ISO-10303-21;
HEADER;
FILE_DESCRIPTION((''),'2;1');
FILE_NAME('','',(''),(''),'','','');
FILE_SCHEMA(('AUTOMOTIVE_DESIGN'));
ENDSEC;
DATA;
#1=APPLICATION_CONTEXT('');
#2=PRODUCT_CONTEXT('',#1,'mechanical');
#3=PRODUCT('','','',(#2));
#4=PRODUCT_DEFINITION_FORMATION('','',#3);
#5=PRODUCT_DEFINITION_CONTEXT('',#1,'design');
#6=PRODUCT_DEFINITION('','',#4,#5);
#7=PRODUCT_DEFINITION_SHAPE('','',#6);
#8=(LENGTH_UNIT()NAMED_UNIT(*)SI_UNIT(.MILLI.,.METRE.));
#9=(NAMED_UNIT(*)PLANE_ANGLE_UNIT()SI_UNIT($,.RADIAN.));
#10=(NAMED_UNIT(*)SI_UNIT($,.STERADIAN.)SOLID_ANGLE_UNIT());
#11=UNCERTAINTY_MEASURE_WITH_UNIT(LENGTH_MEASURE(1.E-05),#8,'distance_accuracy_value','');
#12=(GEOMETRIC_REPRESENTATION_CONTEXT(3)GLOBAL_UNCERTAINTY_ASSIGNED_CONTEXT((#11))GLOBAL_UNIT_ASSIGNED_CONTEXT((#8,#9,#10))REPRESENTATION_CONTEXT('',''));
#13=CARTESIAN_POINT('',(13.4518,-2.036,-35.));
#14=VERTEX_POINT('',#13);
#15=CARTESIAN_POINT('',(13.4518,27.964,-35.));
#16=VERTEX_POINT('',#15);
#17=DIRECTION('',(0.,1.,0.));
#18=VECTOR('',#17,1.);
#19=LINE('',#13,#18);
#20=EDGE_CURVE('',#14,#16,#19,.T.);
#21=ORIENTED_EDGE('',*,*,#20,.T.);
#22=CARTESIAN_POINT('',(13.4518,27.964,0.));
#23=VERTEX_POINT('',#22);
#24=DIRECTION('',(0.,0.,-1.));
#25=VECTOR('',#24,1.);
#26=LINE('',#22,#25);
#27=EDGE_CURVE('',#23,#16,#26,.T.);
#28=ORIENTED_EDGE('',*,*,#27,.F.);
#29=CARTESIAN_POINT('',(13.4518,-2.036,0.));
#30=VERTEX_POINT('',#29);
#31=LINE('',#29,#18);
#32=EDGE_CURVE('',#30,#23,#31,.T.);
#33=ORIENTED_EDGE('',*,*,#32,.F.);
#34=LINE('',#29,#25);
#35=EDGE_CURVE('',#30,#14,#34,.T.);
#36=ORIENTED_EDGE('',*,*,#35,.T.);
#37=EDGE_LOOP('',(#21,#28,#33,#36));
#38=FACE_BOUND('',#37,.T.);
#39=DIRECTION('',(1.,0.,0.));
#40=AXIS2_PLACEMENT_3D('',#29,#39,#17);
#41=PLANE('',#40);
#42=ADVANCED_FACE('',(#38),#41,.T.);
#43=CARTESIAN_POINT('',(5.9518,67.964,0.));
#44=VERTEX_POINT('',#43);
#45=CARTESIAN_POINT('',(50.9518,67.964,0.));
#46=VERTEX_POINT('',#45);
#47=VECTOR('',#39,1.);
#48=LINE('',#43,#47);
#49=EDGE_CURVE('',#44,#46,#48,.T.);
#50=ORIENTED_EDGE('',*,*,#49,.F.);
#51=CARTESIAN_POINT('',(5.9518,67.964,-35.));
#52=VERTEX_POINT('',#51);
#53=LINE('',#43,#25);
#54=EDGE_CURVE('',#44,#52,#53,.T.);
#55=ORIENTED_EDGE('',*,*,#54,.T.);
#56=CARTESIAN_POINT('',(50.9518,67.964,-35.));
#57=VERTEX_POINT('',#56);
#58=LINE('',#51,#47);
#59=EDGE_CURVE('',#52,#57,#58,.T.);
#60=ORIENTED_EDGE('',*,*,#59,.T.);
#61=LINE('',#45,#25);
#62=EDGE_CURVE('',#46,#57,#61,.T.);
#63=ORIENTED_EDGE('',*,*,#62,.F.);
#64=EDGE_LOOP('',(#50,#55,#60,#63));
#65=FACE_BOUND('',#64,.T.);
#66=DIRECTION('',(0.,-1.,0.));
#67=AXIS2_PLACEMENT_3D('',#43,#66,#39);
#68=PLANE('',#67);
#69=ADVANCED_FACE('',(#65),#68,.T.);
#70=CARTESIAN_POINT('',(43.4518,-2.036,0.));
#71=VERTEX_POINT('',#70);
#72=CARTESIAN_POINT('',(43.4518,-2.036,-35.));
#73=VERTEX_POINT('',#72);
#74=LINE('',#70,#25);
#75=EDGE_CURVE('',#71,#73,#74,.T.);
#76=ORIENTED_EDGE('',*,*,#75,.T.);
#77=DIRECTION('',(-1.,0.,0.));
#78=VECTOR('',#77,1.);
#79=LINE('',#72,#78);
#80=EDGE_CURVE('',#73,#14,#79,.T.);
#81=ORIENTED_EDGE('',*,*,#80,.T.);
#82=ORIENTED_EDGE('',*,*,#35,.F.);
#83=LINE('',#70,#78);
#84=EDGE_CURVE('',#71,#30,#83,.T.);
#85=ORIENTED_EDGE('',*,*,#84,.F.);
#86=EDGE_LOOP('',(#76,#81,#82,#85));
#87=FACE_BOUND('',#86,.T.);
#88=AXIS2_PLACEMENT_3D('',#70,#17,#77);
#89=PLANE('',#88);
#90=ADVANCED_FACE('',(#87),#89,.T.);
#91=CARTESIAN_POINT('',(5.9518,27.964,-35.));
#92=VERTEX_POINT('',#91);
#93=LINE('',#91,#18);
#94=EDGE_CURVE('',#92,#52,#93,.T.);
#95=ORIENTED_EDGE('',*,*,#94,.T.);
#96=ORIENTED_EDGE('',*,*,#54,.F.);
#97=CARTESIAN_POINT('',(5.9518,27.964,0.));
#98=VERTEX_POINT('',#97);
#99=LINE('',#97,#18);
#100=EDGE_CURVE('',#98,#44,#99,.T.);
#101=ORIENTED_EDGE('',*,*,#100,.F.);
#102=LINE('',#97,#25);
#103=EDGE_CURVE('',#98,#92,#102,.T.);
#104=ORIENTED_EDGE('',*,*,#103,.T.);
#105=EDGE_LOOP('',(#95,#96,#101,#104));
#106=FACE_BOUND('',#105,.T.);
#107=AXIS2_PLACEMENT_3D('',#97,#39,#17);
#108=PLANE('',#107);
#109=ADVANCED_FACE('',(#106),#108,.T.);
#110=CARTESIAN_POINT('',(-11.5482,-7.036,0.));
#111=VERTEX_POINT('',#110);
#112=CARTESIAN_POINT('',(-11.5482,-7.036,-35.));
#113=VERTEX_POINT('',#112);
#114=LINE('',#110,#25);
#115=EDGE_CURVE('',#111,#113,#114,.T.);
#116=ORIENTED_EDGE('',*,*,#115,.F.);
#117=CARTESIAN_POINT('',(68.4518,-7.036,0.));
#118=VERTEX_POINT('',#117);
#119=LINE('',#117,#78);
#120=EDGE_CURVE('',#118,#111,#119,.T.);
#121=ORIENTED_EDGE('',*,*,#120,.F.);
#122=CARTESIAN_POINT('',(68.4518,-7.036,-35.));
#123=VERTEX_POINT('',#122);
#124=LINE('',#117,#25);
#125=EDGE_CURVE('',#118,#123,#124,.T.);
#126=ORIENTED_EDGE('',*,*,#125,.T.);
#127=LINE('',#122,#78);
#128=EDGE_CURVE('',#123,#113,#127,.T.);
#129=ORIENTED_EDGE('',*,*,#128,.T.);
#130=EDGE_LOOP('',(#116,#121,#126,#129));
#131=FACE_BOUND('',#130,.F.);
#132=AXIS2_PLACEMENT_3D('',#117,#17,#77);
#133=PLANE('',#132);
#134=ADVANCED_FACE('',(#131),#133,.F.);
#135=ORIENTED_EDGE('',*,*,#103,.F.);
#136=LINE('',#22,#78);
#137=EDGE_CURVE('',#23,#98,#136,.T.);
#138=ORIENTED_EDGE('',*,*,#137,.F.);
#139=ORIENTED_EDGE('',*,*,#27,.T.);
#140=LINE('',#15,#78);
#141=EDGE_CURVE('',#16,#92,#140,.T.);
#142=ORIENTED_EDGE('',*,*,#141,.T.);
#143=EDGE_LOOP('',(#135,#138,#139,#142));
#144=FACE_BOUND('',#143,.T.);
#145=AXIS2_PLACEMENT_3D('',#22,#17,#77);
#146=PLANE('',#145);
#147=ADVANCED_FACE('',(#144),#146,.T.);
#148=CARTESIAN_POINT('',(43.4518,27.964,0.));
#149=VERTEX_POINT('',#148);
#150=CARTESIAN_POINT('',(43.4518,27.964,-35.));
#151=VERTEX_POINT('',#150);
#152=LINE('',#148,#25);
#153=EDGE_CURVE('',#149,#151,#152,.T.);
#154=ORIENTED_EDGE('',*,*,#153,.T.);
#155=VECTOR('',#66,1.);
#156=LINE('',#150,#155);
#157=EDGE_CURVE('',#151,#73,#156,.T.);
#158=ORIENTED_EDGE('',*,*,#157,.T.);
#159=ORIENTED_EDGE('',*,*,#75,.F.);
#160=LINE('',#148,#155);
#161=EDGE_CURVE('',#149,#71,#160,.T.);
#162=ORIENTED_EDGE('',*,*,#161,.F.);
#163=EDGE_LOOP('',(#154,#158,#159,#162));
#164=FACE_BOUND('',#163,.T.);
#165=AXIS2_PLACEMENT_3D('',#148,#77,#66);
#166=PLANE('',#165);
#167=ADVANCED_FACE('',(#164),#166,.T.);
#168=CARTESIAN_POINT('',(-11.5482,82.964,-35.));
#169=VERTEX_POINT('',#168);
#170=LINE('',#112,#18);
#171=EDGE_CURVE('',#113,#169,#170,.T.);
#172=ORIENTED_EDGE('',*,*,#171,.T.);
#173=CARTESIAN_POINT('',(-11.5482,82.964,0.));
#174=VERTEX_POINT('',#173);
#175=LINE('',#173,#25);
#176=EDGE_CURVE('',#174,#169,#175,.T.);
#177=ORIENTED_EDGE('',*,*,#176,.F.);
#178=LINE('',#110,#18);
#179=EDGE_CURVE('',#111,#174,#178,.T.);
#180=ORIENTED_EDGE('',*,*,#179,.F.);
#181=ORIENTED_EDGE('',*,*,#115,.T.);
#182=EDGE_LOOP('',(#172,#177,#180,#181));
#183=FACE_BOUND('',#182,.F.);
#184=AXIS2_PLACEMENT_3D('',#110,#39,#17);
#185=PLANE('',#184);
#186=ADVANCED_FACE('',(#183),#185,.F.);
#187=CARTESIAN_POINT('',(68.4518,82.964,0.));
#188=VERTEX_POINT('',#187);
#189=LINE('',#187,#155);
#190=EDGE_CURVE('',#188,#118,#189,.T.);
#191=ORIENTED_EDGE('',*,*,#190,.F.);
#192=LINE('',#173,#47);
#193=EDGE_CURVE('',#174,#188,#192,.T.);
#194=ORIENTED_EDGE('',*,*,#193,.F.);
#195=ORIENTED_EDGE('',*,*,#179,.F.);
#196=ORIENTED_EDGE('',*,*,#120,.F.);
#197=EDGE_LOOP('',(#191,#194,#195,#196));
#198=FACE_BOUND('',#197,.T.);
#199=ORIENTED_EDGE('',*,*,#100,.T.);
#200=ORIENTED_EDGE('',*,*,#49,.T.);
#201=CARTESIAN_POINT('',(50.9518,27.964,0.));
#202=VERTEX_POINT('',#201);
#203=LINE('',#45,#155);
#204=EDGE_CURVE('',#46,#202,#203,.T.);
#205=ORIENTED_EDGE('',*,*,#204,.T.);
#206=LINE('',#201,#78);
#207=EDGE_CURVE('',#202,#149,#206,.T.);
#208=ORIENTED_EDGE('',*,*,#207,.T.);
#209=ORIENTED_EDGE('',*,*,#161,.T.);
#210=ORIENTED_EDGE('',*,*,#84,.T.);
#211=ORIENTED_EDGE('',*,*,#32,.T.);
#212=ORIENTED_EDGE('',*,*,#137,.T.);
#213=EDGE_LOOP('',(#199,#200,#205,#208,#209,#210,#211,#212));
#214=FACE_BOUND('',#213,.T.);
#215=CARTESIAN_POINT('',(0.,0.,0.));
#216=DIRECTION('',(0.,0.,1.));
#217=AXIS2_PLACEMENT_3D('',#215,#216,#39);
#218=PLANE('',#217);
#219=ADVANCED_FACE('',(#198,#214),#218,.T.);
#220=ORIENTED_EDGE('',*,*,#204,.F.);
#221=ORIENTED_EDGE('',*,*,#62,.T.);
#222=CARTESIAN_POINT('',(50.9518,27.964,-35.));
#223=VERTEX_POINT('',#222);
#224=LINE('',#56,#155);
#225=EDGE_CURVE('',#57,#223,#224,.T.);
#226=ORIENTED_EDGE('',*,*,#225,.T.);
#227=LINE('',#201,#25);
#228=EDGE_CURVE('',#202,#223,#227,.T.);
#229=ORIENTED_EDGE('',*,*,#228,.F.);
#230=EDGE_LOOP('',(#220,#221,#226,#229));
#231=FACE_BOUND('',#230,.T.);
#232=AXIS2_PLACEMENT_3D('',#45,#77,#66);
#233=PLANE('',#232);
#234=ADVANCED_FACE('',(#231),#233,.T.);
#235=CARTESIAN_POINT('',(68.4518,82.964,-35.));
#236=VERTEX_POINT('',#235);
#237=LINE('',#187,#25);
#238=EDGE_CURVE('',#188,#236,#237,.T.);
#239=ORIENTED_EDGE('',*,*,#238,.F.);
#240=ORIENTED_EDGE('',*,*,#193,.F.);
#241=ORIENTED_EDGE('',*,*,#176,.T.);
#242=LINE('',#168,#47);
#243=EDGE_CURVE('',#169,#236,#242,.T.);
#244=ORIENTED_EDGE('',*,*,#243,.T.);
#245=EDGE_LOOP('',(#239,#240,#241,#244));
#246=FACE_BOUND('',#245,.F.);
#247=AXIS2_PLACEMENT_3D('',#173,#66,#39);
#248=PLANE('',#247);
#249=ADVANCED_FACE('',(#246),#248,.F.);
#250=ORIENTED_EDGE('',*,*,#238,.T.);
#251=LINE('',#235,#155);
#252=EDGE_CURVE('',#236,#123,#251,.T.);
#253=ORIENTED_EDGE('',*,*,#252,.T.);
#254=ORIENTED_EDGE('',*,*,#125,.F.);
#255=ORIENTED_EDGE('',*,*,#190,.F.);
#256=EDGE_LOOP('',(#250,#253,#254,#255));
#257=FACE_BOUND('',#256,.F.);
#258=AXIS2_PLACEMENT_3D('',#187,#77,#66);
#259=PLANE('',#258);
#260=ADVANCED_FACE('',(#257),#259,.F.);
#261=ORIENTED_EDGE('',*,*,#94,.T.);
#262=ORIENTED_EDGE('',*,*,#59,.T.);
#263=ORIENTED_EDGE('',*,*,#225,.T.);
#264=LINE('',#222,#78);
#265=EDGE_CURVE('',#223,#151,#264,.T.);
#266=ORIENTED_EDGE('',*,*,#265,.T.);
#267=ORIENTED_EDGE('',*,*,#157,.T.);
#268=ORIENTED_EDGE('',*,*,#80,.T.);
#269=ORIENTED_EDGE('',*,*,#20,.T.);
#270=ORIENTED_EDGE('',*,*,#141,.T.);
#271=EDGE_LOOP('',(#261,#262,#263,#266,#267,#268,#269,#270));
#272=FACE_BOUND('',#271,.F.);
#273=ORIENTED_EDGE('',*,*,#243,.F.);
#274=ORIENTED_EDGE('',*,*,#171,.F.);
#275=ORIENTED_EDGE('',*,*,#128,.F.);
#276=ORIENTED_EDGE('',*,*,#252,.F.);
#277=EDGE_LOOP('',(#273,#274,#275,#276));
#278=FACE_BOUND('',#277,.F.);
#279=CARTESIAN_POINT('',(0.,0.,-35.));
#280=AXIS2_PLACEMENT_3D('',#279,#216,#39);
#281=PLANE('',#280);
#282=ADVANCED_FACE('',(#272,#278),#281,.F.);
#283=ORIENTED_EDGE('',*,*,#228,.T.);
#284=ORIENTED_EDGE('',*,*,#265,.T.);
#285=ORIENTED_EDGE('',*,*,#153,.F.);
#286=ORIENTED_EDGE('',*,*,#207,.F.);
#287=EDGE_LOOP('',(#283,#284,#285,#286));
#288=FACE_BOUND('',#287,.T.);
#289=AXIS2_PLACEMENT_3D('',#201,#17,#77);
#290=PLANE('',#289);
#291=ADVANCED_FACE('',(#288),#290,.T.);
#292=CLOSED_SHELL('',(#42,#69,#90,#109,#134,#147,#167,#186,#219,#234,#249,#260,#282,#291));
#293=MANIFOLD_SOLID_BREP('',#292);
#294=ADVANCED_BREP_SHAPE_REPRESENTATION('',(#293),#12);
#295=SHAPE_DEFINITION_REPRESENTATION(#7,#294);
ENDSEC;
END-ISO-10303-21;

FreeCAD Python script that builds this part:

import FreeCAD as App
import Part
import Sketcher

doc = App.newDocument("Part")
body = doc.addObject("PartDesign::Body", "Body")

# Sketch on XY plane
sketch1 = doc.addObject("Sketcher::SketchObject", "Sketch")
body.addObject(sketch1)
sketch1.AttachmentSupport = (doc.XY_Plane, [""])
sketch1.MapMode = "FlatFace"
sketch1.addGeometry([
    Part.LineSegment(App.Vector(-12, 83, 0), App.Vector(-12, -7, 0)),  # 0
    Part.LineSegment(App.Vector(-12, -7, 0), App.Vector(68, -7, 0)),  # 1
    Part.LineSegment(App.Vector(68, -7, 0), App.Vector(68, 83, 0)),  # 2
    Part.LineSegment(App.Vector(68, 83, 0), App.Vector(-12, 83, 0)),  # 3
    Part.LineSegment(App.Vector(13, 28, 0), App.Vector(6, 28, 0)),  # 4
    Part.LineSegment(App.Vector(6, 28, 0), App.Vector(6, 68, 0)),  # 5
    Part.LineSegment(App.Vector(6, 68, 0), App.Vector(51, 68, 0)),  # 6
    Part.LineSegment(App.Vector(51, 68, 0), App.Vector(51, 28, 0)),  # 7
    Part.LineSegment(App.Vector(51, 28, 0), App.Vector(43, 28, 0)),  # 8
    Part.LineSegment(App.Vector(43, 28, 0), App.Vector(43, -2, 0)),  # 9
    Part.LineSegment(App.Vector(43, -2, 0), App.Vector(13, -2, 0)),  # 10
    Part.LineSegment(App.Vector(13, -2, 0), App.Vector(13, 28, 0)),  # 11
], False)
sketch1.addConstraint([
    Sketcher.Constraint("Coincident", 0, 2, 1, 1),
    Sketcher.Constraint("Coincident", 1, 2, 2, 1),
    Sketcher.Constraint("Coincident", 2, 2, 3, 1),
    Sketcher.Constraint("Coincident", 3, 2, 0, 1),
    Sketcher.Constraint("Coincident", 4, 2, 5, 1),
    Sketcher.Constraint("Coincident", 5, 2, 6, 1),
    Sketcher.Constraint("Coincident", 6, 2, 7, 1),
    Sketcher.Constraint("Coincident", 7, 2, 8, 1),
    Sketcher.Constraint("Coincident", 8, 2, 9, 1),
    Sketcher.Constraint("Coincident", 9, 2, 10, 1),
    Sketcher.Constraint("Coincident", 10, 2, 11, 1),
    Sketcher.Constraint("Coincident", 11, 2, 4, 1),
    Sketcher.Constraint("Vertical", 0),
    Sketcher.Constraint("Horizontal", 1),
    Sketcher.Constraint("Vertical", 2),
    Sketcher.Constraint("Horizontal", 3),
    Sketcher.Constraint("Horizontal", 4),
    Sketcher.Constraint("Vertical", 5),
    Sketcher.Constraint("Horizontal", 6),
    Sketcher.Constraint("Vertical", 7),
    Sketcher.Constraint("Horizontal", 8),
    Sketcher.Constraint("Vertical", 9),
    Sketcher.Constraint("Horizontal", 10),
    Sketcher.Constraint("Vertical", 11),
    Sketcher.Constraint("Horizontal", 4, 2, 7, 2),
    Sketcher.Constraint("Equal", 4, 8),
    Sketcher.Constraint("Equal", 10, 9),
    Sketcher.Constraint("DistanceX", 1, 1, 1, 2, 80.0),
    Sketcher.Constraint("DistanceX", 6, 1, 6, 2, 45.0),
    Sketcher.Constraint("DistanceX", 10, 2, 10, 1, 30.0),
    Sketcher.Constraint("DistanceY", 0, 2, 0, 1, 90.0),
    Sketcher.Constraint("DistanceY", 5, 1, 5, 2, 40.0),
    Sketcher.Constraint("DistanceY", 5, 2, 3, 2, 15.0),
    Sketcher.Constraint("DistanceX", 0, 2, 4, 2, 17.5),
    Sketcher.Constraint("DistanceY", 0, 2, -1, 1, 7.036),
    Sketcher.Constraint("DistanceX", 0, 2, -1, 1, 11.5482),
])
pad1 = doc.addObject("PartDesign::Pad", "Pad")
body.addObject(pad1)
pad1.Profile = sketch1
pad1.Length = 35
pad1.Reversed = True

doc.recompute()
